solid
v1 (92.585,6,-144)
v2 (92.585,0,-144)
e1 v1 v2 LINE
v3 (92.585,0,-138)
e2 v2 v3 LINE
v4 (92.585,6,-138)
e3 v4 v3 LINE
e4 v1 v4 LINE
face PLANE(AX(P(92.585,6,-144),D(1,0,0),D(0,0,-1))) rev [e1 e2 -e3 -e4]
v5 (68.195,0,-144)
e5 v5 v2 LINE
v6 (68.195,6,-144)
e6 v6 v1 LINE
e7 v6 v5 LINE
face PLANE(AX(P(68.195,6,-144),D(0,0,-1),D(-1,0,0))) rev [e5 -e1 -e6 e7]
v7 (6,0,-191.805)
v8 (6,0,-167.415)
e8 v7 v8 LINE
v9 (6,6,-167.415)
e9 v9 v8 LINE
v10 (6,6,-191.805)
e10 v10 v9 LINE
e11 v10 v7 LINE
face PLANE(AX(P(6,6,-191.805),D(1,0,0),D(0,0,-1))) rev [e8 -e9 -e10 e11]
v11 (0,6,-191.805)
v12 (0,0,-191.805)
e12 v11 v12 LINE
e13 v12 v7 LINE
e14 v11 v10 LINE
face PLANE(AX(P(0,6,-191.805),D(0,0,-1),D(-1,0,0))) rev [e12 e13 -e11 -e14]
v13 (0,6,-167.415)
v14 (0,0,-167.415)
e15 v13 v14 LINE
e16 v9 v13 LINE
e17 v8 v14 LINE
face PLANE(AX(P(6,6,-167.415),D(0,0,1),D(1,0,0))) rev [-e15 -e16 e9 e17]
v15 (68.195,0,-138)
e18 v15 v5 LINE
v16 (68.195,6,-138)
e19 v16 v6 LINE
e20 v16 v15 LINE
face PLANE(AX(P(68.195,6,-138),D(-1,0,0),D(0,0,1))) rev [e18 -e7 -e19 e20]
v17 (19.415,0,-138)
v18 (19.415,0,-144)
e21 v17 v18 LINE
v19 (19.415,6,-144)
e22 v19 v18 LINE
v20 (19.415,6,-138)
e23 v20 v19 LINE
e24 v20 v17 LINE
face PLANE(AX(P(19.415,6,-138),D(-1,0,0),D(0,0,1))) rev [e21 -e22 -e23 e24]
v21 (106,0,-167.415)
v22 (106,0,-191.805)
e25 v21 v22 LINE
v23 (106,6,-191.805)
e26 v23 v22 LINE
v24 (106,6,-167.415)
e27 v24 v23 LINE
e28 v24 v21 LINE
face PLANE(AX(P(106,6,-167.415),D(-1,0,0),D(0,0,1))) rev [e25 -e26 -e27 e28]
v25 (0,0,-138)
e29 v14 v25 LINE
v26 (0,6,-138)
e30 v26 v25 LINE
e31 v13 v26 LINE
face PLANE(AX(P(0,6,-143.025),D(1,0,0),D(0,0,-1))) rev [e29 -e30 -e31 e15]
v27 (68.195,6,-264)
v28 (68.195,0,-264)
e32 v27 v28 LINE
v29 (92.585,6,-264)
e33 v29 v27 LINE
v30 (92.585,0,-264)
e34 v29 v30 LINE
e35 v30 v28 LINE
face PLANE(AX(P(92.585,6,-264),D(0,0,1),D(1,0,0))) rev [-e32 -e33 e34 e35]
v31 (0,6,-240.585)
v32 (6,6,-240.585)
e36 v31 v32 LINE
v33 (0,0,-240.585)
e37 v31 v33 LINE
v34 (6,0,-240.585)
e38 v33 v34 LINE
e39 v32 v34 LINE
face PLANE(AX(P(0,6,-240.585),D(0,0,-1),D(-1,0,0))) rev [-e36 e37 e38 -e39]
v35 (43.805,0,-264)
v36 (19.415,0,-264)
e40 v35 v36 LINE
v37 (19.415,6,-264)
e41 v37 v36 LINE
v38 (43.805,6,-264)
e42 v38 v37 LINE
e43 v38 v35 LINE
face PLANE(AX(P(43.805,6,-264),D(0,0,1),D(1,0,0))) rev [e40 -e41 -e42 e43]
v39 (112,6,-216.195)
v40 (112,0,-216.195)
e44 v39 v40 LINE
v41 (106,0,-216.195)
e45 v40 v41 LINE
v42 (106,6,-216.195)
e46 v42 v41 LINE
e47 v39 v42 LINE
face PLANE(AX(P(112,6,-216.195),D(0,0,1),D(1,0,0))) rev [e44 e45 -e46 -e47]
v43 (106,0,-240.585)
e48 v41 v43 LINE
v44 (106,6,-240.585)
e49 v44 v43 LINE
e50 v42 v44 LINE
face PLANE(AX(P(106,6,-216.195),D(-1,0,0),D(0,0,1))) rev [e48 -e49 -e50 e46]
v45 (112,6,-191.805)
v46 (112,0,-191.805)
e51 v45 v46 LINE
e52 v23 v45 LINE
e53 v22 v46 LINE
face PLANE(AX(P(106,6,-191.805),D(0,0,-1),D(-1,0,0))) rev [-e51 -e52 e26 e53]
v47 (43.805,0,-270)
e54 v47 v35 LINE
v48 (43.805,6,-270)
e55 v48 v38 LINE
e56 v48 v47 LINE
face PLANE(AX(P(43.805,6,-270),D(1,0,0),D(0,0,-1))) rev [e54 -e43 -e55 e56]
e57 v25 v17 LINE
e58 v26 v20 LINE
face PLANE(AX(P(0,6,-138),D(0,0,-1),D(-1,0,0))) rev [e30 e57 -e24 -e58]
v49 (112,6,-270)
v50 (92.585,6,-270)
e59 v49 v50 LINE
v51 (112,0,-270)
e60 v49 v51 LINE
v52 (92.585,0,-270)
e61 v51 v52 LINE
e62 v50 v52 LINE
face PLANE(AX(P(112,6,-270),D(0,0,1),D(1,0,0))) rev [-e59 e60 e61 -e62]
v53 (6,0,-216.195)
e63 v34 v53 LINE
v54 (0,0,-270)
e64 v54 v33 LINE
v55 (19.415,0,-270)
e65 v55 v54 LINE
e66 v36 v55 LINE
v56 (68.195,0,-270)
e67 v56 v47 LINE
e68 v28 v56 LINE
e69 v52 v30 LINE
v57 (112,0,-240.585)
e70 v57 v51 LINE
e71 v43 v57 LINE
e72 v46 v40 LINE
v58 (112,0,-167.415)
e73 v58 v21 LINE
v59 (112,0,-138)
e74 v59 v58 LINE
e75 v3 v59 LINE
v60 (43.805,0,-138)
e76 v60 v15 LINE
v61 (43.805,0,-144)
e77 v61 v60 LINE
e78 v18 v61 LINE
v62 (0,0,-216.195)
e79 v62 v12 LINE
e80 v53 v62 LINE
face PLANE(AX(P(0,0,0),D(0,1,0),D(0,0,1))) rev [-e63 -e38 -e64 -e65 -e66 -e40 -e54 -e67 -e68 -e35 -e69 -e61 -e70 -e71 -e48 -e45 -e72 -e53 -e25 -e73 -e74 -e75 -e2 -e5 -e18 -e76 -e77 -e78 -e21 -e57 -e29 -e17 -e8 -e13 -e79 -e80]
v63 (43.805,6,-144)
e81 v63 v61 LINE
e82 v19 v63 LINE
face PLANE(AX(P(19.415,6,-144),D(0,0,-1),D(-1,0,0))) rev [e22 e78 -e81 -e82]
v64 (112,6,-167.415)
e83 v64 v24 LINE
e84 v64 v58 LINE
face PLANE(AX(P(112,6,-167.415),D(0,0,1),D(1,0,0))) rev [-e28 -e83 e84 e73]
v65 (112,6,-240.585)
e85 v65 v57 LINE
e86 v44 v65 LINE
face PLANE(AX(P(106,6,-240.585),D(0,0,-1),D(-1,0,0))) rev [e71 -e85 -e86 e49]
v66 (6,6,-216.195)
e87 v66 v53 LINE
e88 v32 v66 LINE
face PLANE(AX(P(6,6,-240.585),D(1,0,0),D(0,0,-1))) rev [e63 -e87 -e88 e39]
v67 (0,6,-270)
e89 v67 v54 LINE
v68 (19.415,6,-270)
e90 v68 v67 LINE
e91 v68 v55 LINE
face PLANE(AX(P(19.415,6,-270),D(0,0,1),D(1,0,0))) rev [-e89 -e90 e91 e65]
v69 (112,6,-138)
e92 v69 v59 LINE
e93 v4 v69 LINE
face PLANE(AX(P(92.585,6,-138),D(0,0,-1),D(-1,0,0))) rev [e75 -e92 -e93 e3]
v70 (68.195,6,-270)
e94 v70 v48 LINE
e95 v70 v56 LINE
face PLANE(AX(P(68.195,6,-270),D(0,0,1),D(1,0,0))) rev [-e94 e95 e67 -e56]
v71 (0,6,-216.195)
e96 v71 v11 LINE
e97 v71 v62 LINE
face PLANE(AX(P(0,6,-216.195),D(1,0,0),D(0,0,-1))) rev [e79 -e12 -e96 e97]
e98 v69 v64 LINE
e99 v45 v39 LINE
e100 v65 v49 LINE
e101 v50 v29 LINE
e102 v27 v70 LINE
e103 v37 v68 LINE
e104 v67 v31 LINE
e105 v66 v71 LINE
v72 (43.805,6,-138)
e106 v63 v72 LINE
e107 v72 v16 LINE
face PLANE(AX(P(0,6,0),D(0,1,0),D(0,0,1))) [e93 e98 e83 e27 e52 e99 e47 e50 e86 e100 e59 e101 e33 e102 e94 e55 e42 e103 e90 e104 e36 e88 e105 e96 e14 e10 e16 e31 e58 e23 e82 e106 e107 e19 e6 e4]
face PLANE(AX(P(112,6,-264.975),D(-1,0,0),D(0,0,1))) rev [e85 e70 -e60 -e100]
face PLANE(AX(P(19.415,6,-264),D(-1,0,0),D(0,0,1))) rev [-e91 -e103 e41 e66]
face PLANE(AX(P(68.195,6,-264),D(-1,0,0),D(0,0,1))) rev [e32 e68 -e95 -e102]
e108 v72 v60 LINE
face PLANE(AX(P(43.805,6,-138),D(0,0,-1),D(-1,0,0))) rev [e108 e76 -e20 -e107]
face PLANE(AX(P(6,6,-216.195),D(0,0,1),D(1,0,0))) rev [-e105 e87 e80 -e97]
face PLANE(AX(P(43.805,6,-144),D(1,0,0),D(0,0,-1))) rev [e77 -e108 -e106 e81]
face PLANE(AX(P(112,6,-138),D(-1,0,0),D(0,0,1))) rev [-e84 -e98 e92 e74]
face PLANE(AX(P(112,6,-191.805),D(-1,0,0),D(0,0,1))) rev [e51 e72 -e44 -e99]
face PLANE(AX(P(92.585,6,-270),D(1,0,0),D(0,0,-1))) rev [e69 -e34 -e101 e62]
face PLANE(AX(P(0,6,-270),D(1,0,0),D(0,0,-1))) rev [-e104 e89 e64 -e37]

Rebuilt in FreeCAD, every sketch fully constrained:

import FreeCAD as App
import Part
import Sketcher

V = App.Vector
Q = App.Units.Quantity

doc = App.newDocument("Part")
body = doc.addObject("PartDesign::Body", "Body")

sketch1 = doc.addObject("Sketcher::SketchObject", "Sketch")
body.addObject(sketch1)
sketch1.AttachmentSupport = (doc.XZ_Plane, [""])
sketch1.MapMode = "FlatFace"
sketch1.addGeometry(Part.LineSegment(V(0, -270, 0), V(0, -241, 0)), False)
sketch1.addGeometry(Part.LineSegment(V(0, -241, 0), V(6, -241, 0)), False)
sketch1.addGeometry(Part.LineSegment(V(6, -241, 0), V(6, -216, 0)), False)
sketch1.addGeometry(Part.LineSegment(V(6, -216, 0), V(0, -216, 0)), False)
sketch1.addGeometry(Part.LineSegment(V(0, -216, 0), V(0, -192, 0)), False)
sketch1.addGeometry(Part.LineSegment(V(0, -192, 0), V(6, -192, 0)), False)
sketch1.addGeometry(Part.LineSegment(V(6, -192, 0), V(6, -167, 0)), False)
sketch1.addGeometry(Part.LineSegment(V(6, -167, 0), V(0, -167, 0)), False)
sketch1.addGeometry(Part.LineSegment(V(0, -167, 0), V(0, -138, 0)), False)
sketch1.addGeometry(Part.LineSegment(V(0, -138, 0), V(19, -138, 0)), False)
sketch1.addGeometry(Part.LineSegment(V(19, -138, 0), V(19, -144, 0)), False)
sketch1.addGeometry(Part.LineSegment(V(19, -144, 0), V(44, -144, 0)), False)
sketch1.addGeometry(Part.LineSegment(V(44, -144, 0), V(44, -138, 0)), False)
sketch1.addGeometry(Part.LineSegment(V(44, -138, 0), V(68, -138, 0)), False)
sketch1.addGeometry(Part.LineSegment(V(68, -138, 0), V(68, -144, 0)), False)
sketch1.addGeometry(Part.LineSegment(V(68, -144, 0), V(93, -144, 0)), False)
sketch1.addGeometry(Part.LineSegment(V(93, -144, 0), V(93, -138, 0)), False)
sketch1.addGeometry(Part.LineSegment(V(93, -138, 0), V(112, -138, 0)), False)
sketch1.addGeometry(Part.LineSegment(V(112, -138, 0), V(112, -167, 0)), False)
sketch1.addGeometry(Part.LineSegment(V(112, -167, 0), V(106, -167, 0)), False)
sketch1.addGeometry(Part.LineSegment(V(106, -167, 0), V(106, -192, 0)), False)
sketch1.addGeometry(Part.LineSegment(V(106, -192, 0), V(112, -192, 0)), False)
sketch1.addGeometry(Part.LineSegment(V(112, -192, 0), V(112, -216, 0)), False)
sketch1.addGeometry(Part.LineSegment(V(112, -216, 0), V(106, -216, 0)), False)
sketch1.addGeometry(Part.LineSegment(V(106, -216, 0), V(106, -241, 0)), False)
sketch1.addGeometry(Part.LineSegment(V(106, -241, 0), V(112, -241, 0)), False)
sketch1.addGeometry(Part.LineSegment(V(112, -241, 0), V(112, -270, 0)), False)
sketch1.addGeometry(Part.LineSegment(V(112, -270, 0), V(93, -270, 0)), False)
sketch1.addGeometry(Part.LineSegment(V(93, -270, 0), V(93, -264, 0)), False)
sketch1.addGeometry(Part.LineSegment(V(93, -264, 0), V(68, -264, 0)), False)
sketch1.addGeometry(Part.LineSegment(V(68, -264, 0), V(68, -270, 0)), False)
sketch1.addGeometry(Part.LineSegment(V(68, -270, 0), V(44, -270, 0)), False)
sketch1.addGeometry(Part.LineSegment(V(44, -270, 0), V(44, -264, 0)), False)
sketch1.addGeometry(Part.LineSegment(V(44, -264, 0), V(19, -264, 0)), False)
sketch1.addGeometry(Part.LineSegment(V(19, -264, 0), V(19, -270, 0)), False)
sketch1.addGeometry(Part.LineSegment(V(19, -270, 0), V(0, -270, 0)), False)
sketch1.addConstraint(Sketcher.Constraint("Coincident", 0, 2, 1, 1))
sketch1.addConstraint(Sketcher.Constraint("Coincident", 1, 2, 2, 1))
sketch1.addConstraint(Sketcher.Constraint("Coincident", 2, 2, 3, 1))
sketch1.addConstraint(Sketcher.Constraint("Coincident", 3, 2, 4, 1))
sketch1.addConstraint(Sketcher.Constraint("Coincident", 4, 2, 5, 1))
sketch1.addConstraint(Sketcher.Constraint("Coincident", 5, 2, 6, 1))
sketch1.addConstraint(Sketcher.Constraint("Coincident", 6, 2, 7, 1))
sketch1.addConstraint(Sketcher.Constraint("Coincident", 7, 2, 8, 1))
sketch1.addConstraint(Sketcher.Constraint("Coincident", 8, 2, 9, 1))
sketch1.addConstraint(Sketcher.Constraint("Coincident", 9, 2, 10, 1))
sketch1.addConstraint(Sketcher.Constraint("Coincident", 10, 2, 11, 1))
sketch1.addConstraint(Sketcher.Constraint("Coincident", 11, 2, 12, 1))
sketch1.addConstraint(Sketcher.Constraint("Coincident", 12, 2, 13, 1))
sketch1.addConstraint(Sketcher.Constraint("Coincident", 13, 2, 14, 1))
sketch1.addConstraint(Sketcher.Constraint("Coincident", 14, 2, 15, 1))
sketch1.addConstraint(Sketcher.Constraint("Coincident", 15, 2, 16, 1))
sketch1.addConstraint(Sketcher.Constraint("Coincident", 16, 2, 17, 1))
sketch1.addConstraint(Sketcher.Constraint("Coincident", 17, 2, 18, 1))
sketch1.addConstraint(Sketcher.Constraint("Coincident", 18, 2, 19, 1))
sketch1.addConstraint(Sketcher.Constraint("Coincident", 19, 2, 20, 1))
sketch1.addConstraint(Sketcher.Constraint("Coincident", 20, 2, 21, 1))
sketch1.addConstraint(Sketcher.Constraint("Coincident", 21, 2, 22, 1))
sketch1.addConstraint(Sketcher.Constraint("Coincident", 22, 2, 23, 1))
sketch1.addConstraint(Sketcher.Constraint("Coincident", 23, 2, 24, 1))
sketch1.addConstraint(Sketcher.Constraint("Coincident", 24, 2, 25, 1))
sketch1.addConstraint(Sketcher.Constraint("Coincident", 25, 2, 26, 1))
sketch1.addConstraint(Sketcher.Constraint("Coincident", 26, 2, 27, 1))
sketch1.addConstraint(Sketcher.Constraint("Coincident", 27, 2, 28, 1))
sketch1.addConstraint(Sketcher.Constraint("Coincident", 28, 2, 29, 1))
sketch1.addConstraint(Sketcher.Constraint("Coincident", 29, 2, 30, 1))
sketch1.addConstraint(Sketcher.Constraint("Coincident", 30, 2, 31, 1))
sketch1.addConstraint(Sketcher.Constraint("Coincident", 31, 2, 32, 1))
sketch1.addConstraint(Sketcher.Constraint("Coincident", 32, 2, 33, 1))
sketch1.addConstraint(Sketcher.Constraint("Coincident", 33, 2, 34, 1))
sketch1.addConstraint(Sketcher.Constraint("Coincident", 34, 2, 35, 1))
sketch1.addConstraint(Sketcher.Constraint("Coincident", 35, 2, 0, 1))
sketch1.addConstraint(Sketcher.Constraint("Vertical", 0))
sketch1.addConstraint(Sketcher.Constraint("Horizontal", 1))
sketch1.addConstraint(Sketcher.Constraint("Vertical", 2))
sketch1.addConstraint(Sketcher.Constraint("Horizontal", 3))
sketch1.addConstraint(Sketcher.Constraint("Vertical", 4))
sketch1.addConstraint(Sketcher.Constraint("Horizontal", 5))
sketch1.addConstraint(Sketcher.Constraint("Vertical", 6))
sketch1.addConstraint(Sketcher.Constraint("Horizontal", 7))
sketch1.addConstraint(Sketcher.Constraint("Vertical", 8))
sketch1.addConstraint(Sketcher.Constraint("Horizontal", 9))
sketch1.addConstraint(Sketcher.Constraint("Vertical", 10))
sketch1.addConstraint(Sketcher.Constraint("Horizontal", 11))
sketch1.addConstraint(Sketcher.Constraint("Vertical", 12))
sketch1.addConstraint(Sketcher.Constraint("Horizontal", 13))
sketch1.addConstraint(Sketcher.Constraint("Vertical", 14))
sketch1.addConstraint(Sketcher.Constraint("Horizontal", 15))
sketch1.addConstraint(Sketcher.Constraint("Vertical", 16))
sketch1.addConstraint(Sketcher.Constraint("Horizontal", 17))
sketch1.addConstraint(Sketcher.Constraint("Vertical", 18))
sketch1.addConstraint(Sketcher.Constraint("Horizontal", 19))
sketch1.addConstraint(Sketcher.Constraint("Vertical", 20))
sketch1.addConstraint(Sketcher.Constraint("Horizontal", 21))
sketch1.addConstraint(Sketcher.Constraint("Vertical", 22))
sketch1.addConstraint(Sketcher.Constraint("Horizontal", 23))
sketch1.addConstraint(Sketcher.Constraint("Vertical", 24))
sketch1.addConstraint(Sketcher.Constraint("Horizontal", 25))
sketch1.addConstraint(Sketcher.Constraint("Vertical", 26))
sketch1.addConstraint(Sketcher.Constraint("Horizontal", 27))
sketch1.addConstraint(Sketcher.Constraint("Vertical", 28))
sketch1.addConstraint(Sketcher.Constraint("Horizontal", 29))
sketch1.addConstraint(Sketcher.Constraint("Vertical", 30))
sketch1.addConstraint(Sketcher.Constraint("Horizontal", 31))
sketch1.addConstraint(Sketcher.Constraint("Vertical", 32))
sketch1.addConstraint(Sketcher.Constraint("Horizontal", 33))
sketch1.addConstraint(Sketcher.Constraint("Vertical", 34))
sketch1.addConstraint(Sketcher.Constraint("Horizontal", 35))
sketch1.addConstraint(Sketcher.Constraint("PointOnObject", 0, 2, -2))
sketch1.addConstraint(Sketcher.Constraint("PointOnObject", 3, 2, -2))
sketch1.addConstraint(Sketcher.Constraint("PointOnObject", 7, 2, -2))
sketch1.addConstraint(Sketcher.Constraint("Horizontal", 9, 2, 12, 2))
sketch1.addConstraint(Sketcher.Constraint("Horizontal", 11, 2, 14, 2))
sketch1.addConstraint(Sketcher.Constraint("Horizontal", 13, 2, 16, 2))
sketch1.addConstraint(Sketcher.Constraint("Horizontal", 7, 2, 18, 2))
sketch1.addConstraint(Sketcher.Constraint("Horizontal", 5, 2, 20, 2))
sketch1.addConstraint(Sketcher.Constraint("Horizontal", 3, 2, 22, 2))
sketch1.addConstraint(Sketcher.Constraint("Horizontal", 1, 2, 24, 2))
sketch1.addConstraint(Sketcher.Constraint("Horizontal", 27, 2, 30, 2))
sketch1.addConstraint(Sketcher.Constraint("Horizontal", 29, 2, 32, 2))
sketch1.addConstraint(Sketcher.Constraint("Horizontal", 31, 2, 34, 2))
sketch1.addConstraint(Sketcher.Constraint("Vertical", 2, 2, 5, 2))
sketch1.addConstraint(Sketcher.Constraint("Vertical", 18, 2, 21, 2))
sketch1.addConstraint(Sketcher.Constraint("Vertical", 20, 2, 23, 2))
sketch1.addConstraint(Sketcher.Constraint("Vertical", 22, 2, 25, 2))
sketch1.addConstraint(Sketcher.Constraint("Vertical", 16, 2, 27, 2))
sketch1.addConstraint(Sketcher.Constraint("Vertical", 14, 2, 29, 2))
sketch1.addConstraint(Sketcher.Constraint("Vertical", 12, 2, 31, 2))
sketch1.addConstraint(Sketcher.Constraint("Vertical", 10, 2, 33, 2))
sketch1.addConstraint(Sketcher.Constraint("Equal", 11, 13))
sketch1.addConstraint(Sketcher.Constraint("Equal", 13, 15))
sketch1.addConstraint(Sketcher.Constraint("Equal", 9, 17))
sketch1.addConstraint(Sketcher.Constraint("Equal", 7, 19))
sketch1.addConstraint(Sketcher.Constraint("Equal", 33, 2))
sketch1.addConstraint(Sketcher.Constraint("Equal", 2, 4))
sketch1.addConstraint(Sketcher.Constraint("Equal", 4, 6))
sketch1.addConstraint(Sketcher.Constraint("Equal", 0, 8))
sketch1.addConstraint(Sketcher.Constraint("Equal", 25, 10))
sketch1.addConstraint(Sketcher.Constraint("Equal", 16, 28))
sketch1.addConstraint(Sketcher.Constraint("DistanceX", 1, 1, 1, 2, Q("6 mm")))
sketch1.addConstraint(Sketcher.Constraint("DistanceY", 8, 2, -1, 1, Q("138 mm")))
sketch1.addConstraint(Sketcher.Constraint("DistanceX", -1, 1, 17, 2, Q("112 mm")))
sketch1.addConstraint(Sketcher.Constraint("DistanceY", 26, 2, -1, 1, Q("270 mm")))
sketch1.addConstraint(Sketcher.Constraint("DistanceX", 11, 1, 11, 2, Q("24.39 mm")))
pad1 = doc.addObject("PartDesign::Pad", "Pad")
body.addObject(pad1)
pad1.Profile = sketch1
pad1.Length = 6
pad1.Reversed = True

doc.recompute()
